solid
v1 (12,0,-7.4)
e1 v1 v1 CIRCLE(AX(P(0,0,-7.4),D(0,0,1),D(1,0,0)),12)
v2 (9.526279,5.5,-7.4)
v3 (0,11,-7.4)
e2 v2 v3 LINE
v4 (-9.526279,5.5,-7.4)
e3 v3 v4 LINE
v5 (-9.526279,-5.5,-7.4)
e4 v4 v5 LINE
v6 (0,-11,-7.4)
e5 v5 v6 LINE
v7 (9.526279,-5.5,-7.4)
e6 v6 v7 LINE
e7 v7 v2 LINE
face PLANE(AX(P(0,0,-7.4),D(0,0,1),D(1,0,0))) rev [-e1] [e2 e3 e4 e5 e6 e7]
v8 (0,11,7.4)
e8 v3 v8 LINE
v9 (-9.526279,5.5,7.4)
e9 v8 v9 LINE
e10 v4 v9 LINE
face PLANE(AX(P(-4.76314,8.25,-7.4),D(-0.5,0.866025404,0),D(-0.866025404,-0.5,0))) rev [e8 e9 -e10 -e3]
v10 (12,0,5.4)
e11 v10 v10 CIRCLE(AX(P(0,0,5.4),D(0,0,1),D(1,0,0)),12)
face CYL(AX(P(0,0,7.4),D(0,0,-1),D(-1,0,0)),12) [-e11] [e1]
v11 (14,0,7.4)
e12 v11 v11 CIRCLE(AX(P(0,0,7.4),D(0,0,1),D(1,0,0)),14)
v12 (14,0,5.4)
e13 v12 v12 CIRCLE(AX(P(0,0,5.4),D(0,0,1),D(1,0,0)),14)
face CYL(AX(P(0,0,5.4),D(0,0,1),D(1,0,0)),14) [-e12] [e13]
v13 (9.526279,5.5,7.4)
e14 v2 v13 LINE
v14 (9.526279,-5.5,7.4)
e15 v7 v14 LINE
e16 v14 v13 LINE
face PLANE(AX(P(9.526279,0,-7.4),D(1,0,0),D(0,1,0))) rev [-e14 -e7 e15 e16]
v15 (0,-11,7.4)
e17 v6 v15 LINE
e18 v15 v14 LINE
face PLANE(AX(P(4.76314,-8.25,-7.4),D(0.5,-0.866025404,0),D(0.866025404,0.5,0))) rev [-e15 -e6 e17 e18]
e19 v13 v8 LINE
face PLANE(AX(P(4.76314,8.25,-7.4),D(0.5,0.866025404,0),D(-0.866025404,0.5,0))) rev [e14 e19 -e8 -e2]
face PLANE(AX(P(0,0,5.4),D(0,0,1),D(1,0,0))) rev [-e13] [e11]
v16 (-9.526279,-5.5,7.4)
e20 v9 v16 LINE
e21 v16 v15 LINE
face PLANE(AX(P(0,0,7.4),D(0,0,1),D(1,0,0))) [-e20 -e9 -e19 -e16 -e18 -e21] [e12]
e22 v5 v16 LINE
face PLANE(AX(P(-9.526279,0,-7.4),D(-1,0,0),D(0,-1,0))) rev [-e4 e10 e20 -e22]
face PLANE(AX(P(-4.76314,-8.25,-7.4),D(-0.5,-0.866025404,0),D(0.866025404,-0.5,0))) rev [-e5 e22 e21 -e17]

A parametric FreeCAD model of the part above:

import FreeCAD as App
import Part
import Sketcher
from FreeCAD import Vector
Q = App.Units.Quantity

doc = App.newDocument("Part")
params = doc.addObject("Spreadsheet::Sheet", "Params")
for row, (alias, value) in enumerate([
    ("sketch1_diameter", "24 mm"),
    ("sketch1_diameter2", "12.8 mm"),
    ("pad1_length", "14.8 mm"),
    ("sketch2_diameter", "28 mm"),
    ("pad2_length", "2 mm"),
    ("sketch3_height", "11 mm"),
    ("sketch3_length", "11 mm"),
], start=1):
    params.set(f"A{row}", alias)
    params.set(f"B{row}", "=" + value)
    params.setAlias(f"B{row}", alias)

body = doc.addObject("PartDesign::Body", "Body")

# Sketch on XY plane
sketch1 = body.newObject("Sketcher::SketchObject", "Sketch")
sketch1.AttachmentSupport = (doc.getObject("XY_Plane"), [""])
sketch1.MapMode = "FlatFace"
sketch1.addGeometry([
    Part.Circle(Vector(0, 0, 0), Vector(0, 0, 1), 12),
    Part.Circle(Vector(0, 0, 0), Vector(0, 0, 1), 6),
], False)
sketch1.addConstraint([
    Sketcher.Constraint("Coincident", 0, 3, -1, 1),
    Sketcher.Constraint("Coincident", 1, 3, -1, 1),
    Sketcher.Constraint("Diameter", 0, 24.0),
    Sketcher.Constraint("Diameter", 1, 12.8),
])
sketch1.setExpression("Constraints[2]", "Params.sketch1_diameter")
sketch1.setExpression("Constraints[3]", "Params.sketch1_diameter2")
pad1 = body.newObject("PartDesign::Pad", "Pad")
pad1.Profile = sketch1
pad1.setExpression("Length", "Params.pad1_length")
pad1.Midplane = True

# Sketch on XY plane
sketch2 = body.newObject("Sketcher::SketchObject", "Sketch001")
sketch2.AttachmentSupport = (doc.getObject("XY_Plane"), [""])
sketch2.MapMode = "FlatFace"
sketch2.AttachmentOffset = App.Placement(Vector(0, 0, 7.4), App.Rotation())
sketch2.addGeometry(Part.Circle(Vector(0, 0, 0), Vector(0, 0, 1), 14), False)
sketch2.addConstraint([
    Sketcher.Constraint("Coincident", 0, 3, -1, 1),
    Sketcher.Constraint("Diameter", 0, 28.0),
])
sketch2.setExpression("Constraints[1]", "Params.sketch2_diameter")
pad2 = body.newObject("PartDesign::Pad", "Pad001")
pad2.Profile = sketch2
pad2.setExpression("Length", "Params.pad2_length")
pad2.Reversed = True

# Sketch on XY plane
sketch3 = body.newObject("Sketcher::SketchObject", "Sketch002")
sketch3.AttachmentSupport = (doc.getObject("XY_Plane"), [""])
sketch3.MapMode = "FlatFace"
sketch3.addGeometry([
    Part.LineSegment(Vector(-10, 6, 0), Vector(-10, -6, 0)),  # 0
    Part.LineSegment(Vector(-10, -6, 0), Vector(0, -11, 0)),  # 1
    Part.LineSegment(Vector(0, -11, 0), Vector(10, -6, 0)),  # 2
    Part.LineSegment(Vector(10, -6, 0), Vector(10, 6, 0)),  # 3
    Part.LineSegment(Vector(10, 6, 0), Vector(0, 11, 0)),  # 4
    Part.LineSegment(Vector(0, 11, 0), Vector(-10, 6, 0)),  # 5
], False)
sketch3.addConstraint([
    Sketcher.Constraint("Coincident", 0, 2, 1, 1),
    Sketcher.Constraint("Coincident", 1, 2, 2, 1),
    Sketcher.Constraint("Coincident", 2, 2, 3, 1),
    Sketcher.Constraint("Coincident", 3, 2, 4, 1),
    Sketcher.Constraint("Coincident", 4, 2, 5, 1),
    Sketcher.Constraint("Coincident", 5, 2, 0, 1),
    Sketcher.Constraint("Vertical", 0),
    Sketcher.Constraint("Vertical", 3),
    Sketcher.Constraint("Symmetric", 0, 2, 3, 2, -1, 1),
    Sketcher.Constraint("Symmetric", 1, 2, 4, 2, -1, 1),
    Sketcher.Constraint("PointOnObject", 1, 2, -2),
    Sketcher.Constraint("Parallel", 2, 5),
    Sketcher.Constraint("Horizontal", 0, 2, 2, 2),
    Sketcher.Constraint("DistanceY", 0, 2, 0, 1, 11.0),
    Sketcher.Constraint("Angle", 1, Q("-30 deg")),
    Sketcher.Constraint("Distance", 1, 11.0),
])
sketch3.setExpression("Constraints[13]", "Params.sketch3_height")
sketch3.setExpression("Constraints[15]", "Params.sketch3_length")
pocket1 = body.newObject("PartDesign::Pocket", "Pocket")
pocket1.Profile = sketch3
pocket1.Type = "ThroughAll"
pocket1.Midplane = True

doc.recompute()
